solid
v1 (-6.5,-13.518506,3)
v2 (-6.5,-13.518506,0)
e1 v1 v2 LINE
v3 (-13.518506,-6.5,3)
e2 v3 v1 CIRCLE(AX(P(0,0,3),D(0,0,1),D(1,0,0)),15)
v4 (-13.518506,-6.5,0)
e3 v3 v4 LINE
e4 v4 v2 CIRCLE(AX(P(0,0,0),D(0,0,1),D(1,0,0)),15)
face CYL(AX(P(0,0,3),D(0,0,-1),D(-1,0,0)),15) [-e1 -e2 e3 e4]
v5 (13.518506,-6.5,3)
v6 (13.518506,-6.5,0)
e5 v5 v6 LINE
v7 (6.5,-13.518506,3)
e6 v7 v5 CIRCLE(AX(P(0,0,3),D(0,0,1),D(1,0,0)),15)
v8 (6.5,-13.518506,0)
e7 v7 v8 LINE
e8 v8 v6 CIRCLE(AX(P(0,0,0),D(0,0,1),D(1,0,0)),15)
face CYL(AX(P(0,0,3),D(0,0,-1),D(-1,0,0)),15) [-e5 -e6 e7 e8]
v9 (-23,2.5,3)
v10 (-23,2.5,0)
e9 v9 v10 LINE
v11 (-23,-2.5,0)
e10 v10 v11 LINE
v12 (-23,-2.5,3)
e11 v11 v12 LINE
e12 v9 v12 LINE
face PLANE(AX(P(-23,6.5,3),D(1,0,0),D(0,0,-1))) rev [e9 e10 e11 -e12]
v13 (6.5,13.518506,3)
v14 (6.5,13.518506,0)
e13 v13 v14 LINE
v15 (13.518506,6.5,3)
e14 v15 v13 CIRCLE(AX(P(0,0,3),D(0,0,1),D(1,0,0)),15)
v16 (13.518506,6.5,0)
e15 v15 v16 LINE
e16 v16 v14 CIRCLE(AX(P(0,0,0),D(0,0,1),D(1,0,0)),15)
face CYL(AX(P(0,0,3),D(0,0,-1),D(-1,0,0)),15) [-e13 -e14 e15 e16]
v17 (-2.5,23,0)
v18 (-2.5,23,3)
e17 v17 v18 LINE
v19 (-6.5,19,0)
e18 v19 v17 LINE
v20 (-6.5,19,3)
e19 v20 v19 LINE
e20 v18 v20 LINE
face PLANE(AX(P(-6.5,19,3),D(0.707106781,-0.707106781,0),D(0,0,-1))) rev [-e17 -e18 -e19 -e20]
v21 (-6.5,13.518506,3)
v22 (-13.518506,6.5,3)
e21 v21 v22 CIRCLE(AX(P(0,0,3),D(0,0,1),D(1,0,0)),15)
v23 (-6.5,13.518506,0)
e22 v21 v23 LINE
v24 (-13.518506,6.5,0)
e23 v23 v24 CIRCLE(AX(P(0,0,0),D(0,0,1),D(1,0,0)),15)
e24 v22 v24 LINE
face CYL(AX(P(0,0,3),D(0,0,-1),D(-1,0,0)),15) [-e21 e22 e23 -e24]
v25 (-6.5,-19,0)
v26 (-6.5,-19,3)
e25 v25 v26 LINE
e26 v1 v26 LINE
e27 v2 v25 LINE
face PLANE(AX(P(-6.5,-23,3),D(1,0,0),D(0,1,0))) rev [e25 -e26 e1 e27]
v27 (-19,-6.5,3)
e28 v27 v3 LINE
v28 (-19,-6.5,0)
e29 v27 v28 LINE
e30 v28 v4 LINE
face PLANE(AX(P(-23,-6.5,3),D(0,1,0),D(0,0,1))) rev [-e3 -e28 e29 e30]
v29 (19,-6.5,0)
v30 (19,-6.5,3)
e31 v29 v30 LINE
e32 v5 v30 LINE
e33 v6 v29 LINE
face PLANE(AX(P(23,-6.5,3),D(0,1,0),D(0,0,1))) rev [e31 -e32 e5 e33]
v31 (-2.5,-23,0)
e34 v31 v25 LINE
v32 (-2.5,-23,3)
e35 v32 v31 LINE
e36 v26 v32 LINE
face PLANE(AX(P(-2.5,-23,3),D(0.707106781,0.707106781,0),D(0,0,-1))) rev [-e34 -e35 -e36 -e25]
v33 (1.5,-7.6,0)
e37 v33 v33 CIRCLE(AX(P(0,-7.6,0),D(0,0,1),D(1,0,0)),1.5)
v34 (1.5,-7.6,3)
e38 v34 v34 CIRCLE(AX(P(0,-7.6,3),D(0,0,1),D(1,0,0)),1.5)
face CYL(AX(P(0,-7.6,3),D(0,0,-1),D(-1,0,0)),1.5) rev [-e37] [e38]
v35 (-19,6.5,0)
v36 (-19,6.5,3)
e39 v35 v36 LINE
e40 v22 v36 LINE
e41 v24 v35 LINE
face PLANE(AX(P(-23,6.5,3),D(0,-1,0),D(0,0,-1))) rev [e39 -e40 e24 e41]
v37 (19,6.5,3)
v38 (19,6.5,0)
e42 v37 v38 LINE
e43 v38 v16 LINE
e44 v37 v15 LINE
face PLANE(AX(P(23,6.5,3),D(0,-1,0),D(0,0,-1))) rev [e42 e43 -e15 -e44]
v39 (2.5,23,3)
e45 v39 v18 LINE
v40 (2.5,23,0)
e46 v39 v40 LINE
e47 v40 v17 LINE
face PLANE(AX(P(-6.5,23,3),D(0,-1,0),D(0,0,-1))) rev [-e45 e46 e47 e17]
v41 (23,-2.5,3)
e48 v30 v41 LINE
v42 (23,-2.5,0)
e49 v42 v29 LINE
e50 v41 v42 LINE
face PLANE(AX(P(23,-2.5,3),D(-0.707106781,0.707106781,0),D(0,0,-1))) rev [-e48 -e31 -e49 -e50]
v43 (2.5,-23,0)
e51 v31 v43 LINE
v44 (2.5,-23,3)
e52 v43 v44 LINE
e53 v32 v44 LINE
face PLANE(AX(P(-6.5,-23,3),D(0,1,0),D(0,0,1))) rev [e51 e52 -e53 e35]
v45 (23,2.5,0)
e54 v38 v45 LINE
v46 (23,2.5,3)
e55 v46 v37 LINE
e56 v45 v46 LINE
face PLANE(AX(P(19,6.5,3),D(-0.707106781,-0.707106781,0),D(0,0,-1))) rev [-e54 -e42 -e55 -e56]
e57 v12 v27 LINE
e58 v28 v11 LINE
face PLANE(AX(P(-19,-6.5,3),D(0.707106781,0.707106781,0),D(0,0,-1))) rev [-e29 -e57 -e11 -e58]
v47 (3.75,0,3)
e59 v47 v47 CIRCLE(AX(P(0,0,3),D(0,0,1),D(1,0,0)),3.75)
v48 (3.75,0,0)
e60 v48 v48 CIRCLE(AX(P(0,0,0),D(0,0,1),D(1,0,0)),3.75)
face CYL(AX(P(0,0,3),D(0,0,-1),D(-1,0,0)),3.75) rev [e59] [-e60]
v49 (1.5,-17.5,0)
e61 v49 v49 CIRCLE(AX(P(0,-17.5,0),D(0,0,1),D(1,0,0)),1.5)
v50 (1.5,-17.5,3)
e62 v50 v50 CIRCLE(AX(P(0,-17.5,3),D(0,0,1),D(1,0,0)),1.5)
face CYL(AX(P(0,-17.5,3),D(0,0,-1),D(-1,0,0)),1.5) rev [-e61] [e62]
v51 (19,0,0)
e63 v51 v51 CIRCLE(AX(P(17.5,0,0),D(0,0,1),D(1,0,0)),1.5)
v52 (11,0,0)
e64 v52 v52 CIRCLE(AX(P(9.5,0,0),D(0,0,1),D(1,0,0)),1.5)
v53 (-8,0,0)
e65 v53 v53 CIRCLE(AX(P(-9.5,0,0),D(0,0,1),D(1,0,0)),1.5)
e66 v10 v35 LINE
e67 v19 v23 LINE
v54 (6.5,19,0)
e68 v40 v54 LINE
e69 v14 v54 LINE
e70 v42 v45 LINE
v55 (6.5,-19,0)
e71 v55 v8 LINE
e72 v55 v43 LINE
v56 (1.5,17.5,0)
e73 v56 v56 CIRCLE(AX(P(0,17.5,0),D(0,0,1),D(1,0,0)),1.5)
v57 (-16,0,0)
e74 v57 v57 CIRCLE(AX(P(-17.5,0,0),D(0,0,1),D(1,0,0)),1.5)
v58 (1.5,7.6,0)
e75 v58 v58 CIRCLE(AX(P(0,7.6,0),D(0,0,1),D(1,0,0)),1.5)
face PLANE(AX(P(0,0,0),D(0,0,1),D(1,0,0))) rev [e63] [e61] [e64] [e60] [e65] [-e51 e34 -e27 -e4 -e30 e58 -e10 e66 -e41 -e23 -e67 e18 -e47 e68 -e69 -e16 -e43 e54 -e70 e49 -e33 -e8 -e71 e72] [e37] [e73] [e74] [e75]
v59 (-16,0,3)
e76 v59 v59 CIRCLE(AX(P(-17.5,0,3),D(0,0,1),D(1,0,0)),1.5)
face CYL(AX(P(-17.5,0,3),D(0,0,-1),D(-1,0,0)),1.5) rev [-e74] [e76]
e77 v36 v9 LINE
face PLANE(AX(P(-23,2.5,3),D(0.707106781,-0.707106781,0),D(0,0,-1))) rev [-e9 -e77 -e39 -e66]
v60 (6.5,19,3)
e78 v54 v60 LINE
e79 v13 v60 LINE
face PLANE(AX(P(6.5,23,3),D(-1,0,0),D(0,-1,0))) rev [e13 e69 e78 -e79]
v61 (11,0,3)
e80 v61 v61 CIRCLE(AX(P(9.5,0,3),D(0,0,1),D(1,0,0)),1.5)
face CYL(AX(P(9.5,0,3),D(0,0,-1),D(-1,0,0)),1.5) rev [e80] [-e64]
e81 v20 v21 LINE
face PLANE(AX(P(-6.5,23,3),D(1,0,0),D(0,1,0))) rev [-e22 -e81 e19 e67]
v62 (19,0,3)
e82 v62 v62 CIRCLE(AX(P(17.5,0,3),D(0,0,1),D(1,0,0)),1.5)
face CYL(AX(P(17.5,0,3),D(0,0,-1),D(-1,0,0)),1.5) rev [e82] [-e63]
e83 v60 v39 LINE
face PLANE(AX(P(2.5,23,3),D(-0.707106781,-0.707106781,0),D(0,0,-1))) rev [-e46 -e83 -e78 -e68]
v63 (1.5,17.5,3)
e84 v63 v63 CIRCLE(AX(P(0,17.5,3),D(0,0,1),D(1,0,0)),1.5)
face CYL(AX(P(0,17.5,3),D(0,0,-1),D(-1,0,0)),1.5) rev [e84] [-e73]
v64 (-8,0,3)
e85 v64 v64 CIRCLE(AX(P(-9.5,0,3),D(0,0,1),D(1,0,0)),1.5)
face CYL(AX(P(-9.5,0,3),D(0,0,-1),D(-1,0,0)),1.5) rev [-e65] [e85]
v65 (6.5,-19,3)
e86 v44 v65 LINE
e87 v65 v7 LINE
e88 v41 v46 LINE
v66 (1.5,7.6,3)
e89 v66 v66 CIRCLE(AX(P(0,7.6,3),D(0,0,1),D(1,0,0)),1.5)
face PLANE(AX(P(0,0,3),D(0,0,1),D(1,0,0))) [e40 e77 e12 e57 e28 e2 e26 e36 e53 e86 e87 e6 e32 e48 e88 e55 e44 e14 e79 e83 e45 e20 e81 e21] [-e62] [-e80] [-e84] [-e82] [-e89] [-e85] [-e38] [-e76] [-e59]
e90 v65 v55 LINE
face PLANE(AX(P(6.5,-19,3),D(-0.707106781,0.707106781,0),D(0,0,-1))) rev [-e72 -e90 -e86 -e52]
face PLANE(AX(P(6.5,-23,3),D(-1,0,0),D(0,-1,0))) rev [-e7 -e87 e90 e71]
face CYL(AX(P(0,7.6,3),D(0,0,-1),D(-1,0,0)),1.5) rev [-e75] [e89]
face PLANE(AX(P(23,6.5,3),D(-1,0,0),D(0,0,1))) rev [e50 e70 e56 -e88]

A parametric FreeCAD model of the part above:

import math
import FreeCAD as App
import Part
import Sketcher


def edges_at(feature, points):
    """Names of the edges that pass closest to the given points."""
    edges = feature.Shape.Edges
    near = lambda p: min(range(len(edges)), key=lambda i: edges[i].distToShape(Part.Vertex(*p))[0])
    return sorted({f"Edge{near(p) + 1}" for p in points})

doc = App.newDocument("Part")
params = doc.addObject("Spreadsheet::Sheet", "Params")
for row, (alias, value) in enumerate([
    ("sketch1_diameter", "3 mm"),
    ("sketch1_radius", "15 mm"),
    ("sketch1_diameter2", "7.5 mm"),
    ("sketch1_width", "13 mm"),
    ("pad1_length", "3 mm"),
    ("chamfer_size", "4 mm"),
], start=1):
    params.set(f"A{row}", alias)
    params.set(f"B{row}", "=" + value)
    params.setAlias(f"B{row}", alias)

body = doc.addObject("PartDesign::Body", "Body")

# Sketch on XY plane
sketch1 = body.newObject("Sketcher::SketchObject", "Sketch")
sketch1.AttachmentSupport = (doc.getObject("XY_Plane"), [""])
sketch1.MapMode = "FlatFace"
sketch1.addGeometry([
    Part.LineSegment(App.Vector(6.5, 23, 0), App.Vector(-6.5, 23, 0)),  # 0
    Part.LineSegment(App.Vector(-6.5, 23, 0), App.Vector(-6.5, 13.5, 0)),  # 1
    Part.ArcOfCircle(Part.Circle(App.Vector(0, 0, 0), App.Vector(0, 0, 1), 15), math.radians(116), math.radians(154)),  # 2
    Part.LineSegment(App.Vector(-13.5, 6.5, 0), App.Vector(-23, 6.5, 0)),  # 3
    Part.LineSegment(App.Vector(-23, 6.5, 0), App.Vector(-23, -6.5, 0)),  # 4
    Part.LineSegment(App.Vector(-23, -6.5, 0), App.Vector(-13.5, -6.5, 0)),  # 5
    Part.ArcOfCircle(Part.Circle(App.Vector(0, 0, 0), App.Vector(0, 0, 1), 15), math.radians(-154), math.radians(-116)),  # 6
    Part.LineSegment(App.Vector(-6.5, -13.5, 0), App.Vector(-6.5, -23, 0)),  # 7
    Part.LineSegment(App.Vector(-6.5, -23, 0), App.Vector(6.5, -23, 0)),  # 8
    Part.LineSegment(App.Vector(6.5, -23, 0), App.Vector(6.5, -13.5, 0)),  # 9
    Part.ArcOfCircle(Part.Circle(App.Vector(0, 0, 0), App.Vector(0, 0, 1), 15), math.radians(-64), math.radians(-26)),  # 10
    Part.LineSegment(App.Vector(13.5, -6.5, 0), App.Vector(23, -6.5, 0)),  # 11
    Part.LineSegment(App.Vector(23, -6.5, 0), App.Vector(23, 6.5, 0)),  # 12
    Part.LineSegment(App.Vector(23, 6.5, 0), App.Vector(13.5, 6.5, 0)),  # 13
    Part.ArcOfCircle(Part.Circle(App.Vector(0, 0, 0), App.Vector(0, 0, 1), 15), math.radians(26), math.radians(64)),  # 14
    Part.LineSegment(App.Vector(6.5, 13.5, 0), App.Vector(6.5, 23, 0)),  # 15
    Part.Circle(App.Vector(0, -17.5, 0), App.Vector(0, 0, 1), 1.5),  # 16
    Part.Circle(App.Vector(0, -7.6, 0), App.Vector(0, 0, 1), 1.5),  # 17
    Part.Circle(App.Vector(17.5, 0, 0), App.Vector(0, 0, 1), 1.5),  # 18
    Part.Circle(App.Vector(9.5, 0, 0), App.Vector(0, 0, 1), 1.5),  # 19
    Part.Circle(App.Vector(0, 0, 0), App.Vector(0, 0, 1), 3.8),  # 20
    Part.Circle(App.Vector(0, 7.6, 0), App.Vector(0, 0, 1), 1.5),  # 21
    Part.Circle(App.Vector(-9.5, 0, 0), App.Vector(0, 0, 1), 1.5),  # 22
    Part.Circle(App.Vector(-17.5, 0, 0), App.Vector(0, 0, 1), 1.5),  # 23
    Part.Circle(App.Vector(0, 17.5, 0), App.Vector(0, 0, 1), 1.5),  # 24
], False)
sketch1.addConstraint([
    Sketcher.Constraint("Coincident", 0, 2, 1, 1),
    Sketcher.Constraint("Coincident", 1, 2, 2, 1),
    Sketcher.Constraint("Coincident", 2, 2, 3, 1),
    Sketcher.Constraint("Coincident", 3, 2, 4, 1),
    Sketcher.Constraint("Coincident", 4, 2, 5, 1),
    Sketcher.Constraint("Coincident", 5, 2, 6, 1),
    Sketcher.Constraint("Coincident", 6, 2, 7, 1),
    Sketcher.Constraint("Coincident", 7, 2, 8, 1),
    Sketcher.Constraint("Coincident", 8, 2, 9, 1),
    Sketcher.Constraint("Coincident", 9, 2, 10, 1),
    Sketcher.Constraint("Coincident", 10, 2, 11, 1),
    Sketcher.Constraint("Coincident", 11, 2, 12, 1),
    Sketcher.Constraint("Coincident", 12, 2, 13, 1),
    Sketcher.Constraint("Coincident", 13, 2, 14, 1),
    Sketcher.Constraint("Coincident", 14, 2, 15, 1),
    Sketcher.Constraint("Coincident", 15, 2, 0, 1),
    Sketcher.Constraint("Horizontal", 0),
    Sketcher.Constraint("Vertical", 1),
    Sketcher.Constraint("Horizontal", 3),
    Sketcher.Constraint("Vertical", 4),
    Sketcher.Constraint("Horizontal", 5),
    Sketcher.Constraint("Vertical", 7),
    Sketcher.Constraint("Horizontal", 8),
    Sketcher.Constraint("Vertical", 9),
    Sketcher.Constraint("Horizontal", 11),
    Sketcher.Constraint("Vertical", 12),
    Sketcher.Constraint("Horizontal", 13),
    Sketcher.Constraint("Vertical", 15),
    Sketcher.Constraint("Coincident", 2, 3, -1, 1),
    Sketcher.Constraint("Coincident", 6, 3, -1, 1),
    Sketcher.Constraint("Coincident", 10, 3, -1, 1),
    Sketcher.Constraint("Coincident", 14, 3, -1, 1),
    Sketcher.Constraint("Coincident", 20, 3, -1, 1),
    Sketcher.Constraint("Equal", 2, 6),
    Sketcher.Constraint("Equal", 6, 10),
    Sketcher.Constraint("Equal", 10, 14),
    Sketcher.Constraint("Equal", 16, 17),
    Sketcher.Constraint("Equal", 17, 18),
    Sketcher.Constraint("Equal", 18, 19),
    Sketcher.Constraint("Equal", 19, 21),
    Sketcher.Constraint("Equal", 21, 22),
    Sketcher.Constraint("Equal", 22, 23),
    Sketcher.Constraint("Equal", 23, 24),
    Sketcher.Constraint("Symmetric", 17, 3, 21, 3, -1, 1),
    Sketcher.Constraint("Symmetric", 19, 3, 22, 3, -1, 1),
    Sketcher.Constraint("Symmetric", 18, 3, 23, 3, -1, 1),
    Sketcher.Constraint("Symmetric", 16, 3, 24, 3, -1, 1),
    Sketcher.Constraint("Symmetric", 0, 2, 8, 2, -1, 1),
    Sketcher.Constraint("Symmetric", 3, 2, 11, 2, -1, 1),
    Sketcher.Constraint("PointOnObject", 16, 3, -2),
    Sketcher.Constraint("PointOnObject", 17, 3, -2),
    Sketcher.Constraint("PointOnObject", 18, 3, -1),
    Sketcher.Constraint("PointOnObject", 19, 3, -1),
    Sketcher.Constraint("Horizontal", 6, 2, 9, 2),
    Sketcher.Constraint("Horizontal", 5, 2, 10, 2),
    Sketcher.Constraint("Horizontal", 3, 2, 12, 2),
    Sketcher.Constraint("Horizontal", 1, 2, 14, 2),
    Sketcher.Constraint("Equal", 13, 1),
    Sketcher.Constraint("Equal", 8, 4),
    Sketcher.Constraint("Diameter", 16, 3.0),
    Sketcher.Constraint("Radius", 2, 15.0),
    Sketcher.Constraint("Diameter", 20, 7.5),
    Sketcher.Constraint("DistanceX", 0, 2, 0, 1, 13.0),
    Sketcher.Constraint("DistanceY", -1, 1, 0, 2, 23.0),
    Sketcher.Constraint("DistanceX", 19, 3, 18, 3, 8.0),
    Sketcher.Constraint("DistanceX", 22, 3, 0, 2, 3.0),
    Sketcher.Constraint("DistanceY", 16, 3, -1, 1, 17.5),
    Sketcher.Constraint("DistanceY", 17, 3, -1, 1, 7.6),
])
sketch1.setExpression("Constraints[59]", "Params.sketch1_diameter")
sketch1.setExpression("Constraints[60]", "Params.sketch1_radius")
sketch1.setExpression("Constraints[61]", "Params.sketch1_diameter2")
sketch1.setExpression("Constraints[62]", "Params.sketch1_width")
pad1 = body.newObject("PartDesign::Pad", "Pad")
pad1.Profile = sketch1
pad1.setExpression("Length", "Params.pad1_length")
doc.recompute()

chamfer = body.newObject("PartDesign::Chamfer", "Chamfer")
chamfer.Base = (pad1, edges_at(pad1, [
    (23, 6.5, 1.5),
    (23, -6.5, 1.5),
    (6.5, -23, 1.5),
    (-6.5, -23, 1.5),
    (-23, -6.5, 1.5),
    (-23, 6.5, 1.5),
    (-6.5, 23, 1.5),
    (6.5, 23, 1.5),
]))
chamfer.setExpression("Size", "Params.chamfer_size")

doc.recompute()
